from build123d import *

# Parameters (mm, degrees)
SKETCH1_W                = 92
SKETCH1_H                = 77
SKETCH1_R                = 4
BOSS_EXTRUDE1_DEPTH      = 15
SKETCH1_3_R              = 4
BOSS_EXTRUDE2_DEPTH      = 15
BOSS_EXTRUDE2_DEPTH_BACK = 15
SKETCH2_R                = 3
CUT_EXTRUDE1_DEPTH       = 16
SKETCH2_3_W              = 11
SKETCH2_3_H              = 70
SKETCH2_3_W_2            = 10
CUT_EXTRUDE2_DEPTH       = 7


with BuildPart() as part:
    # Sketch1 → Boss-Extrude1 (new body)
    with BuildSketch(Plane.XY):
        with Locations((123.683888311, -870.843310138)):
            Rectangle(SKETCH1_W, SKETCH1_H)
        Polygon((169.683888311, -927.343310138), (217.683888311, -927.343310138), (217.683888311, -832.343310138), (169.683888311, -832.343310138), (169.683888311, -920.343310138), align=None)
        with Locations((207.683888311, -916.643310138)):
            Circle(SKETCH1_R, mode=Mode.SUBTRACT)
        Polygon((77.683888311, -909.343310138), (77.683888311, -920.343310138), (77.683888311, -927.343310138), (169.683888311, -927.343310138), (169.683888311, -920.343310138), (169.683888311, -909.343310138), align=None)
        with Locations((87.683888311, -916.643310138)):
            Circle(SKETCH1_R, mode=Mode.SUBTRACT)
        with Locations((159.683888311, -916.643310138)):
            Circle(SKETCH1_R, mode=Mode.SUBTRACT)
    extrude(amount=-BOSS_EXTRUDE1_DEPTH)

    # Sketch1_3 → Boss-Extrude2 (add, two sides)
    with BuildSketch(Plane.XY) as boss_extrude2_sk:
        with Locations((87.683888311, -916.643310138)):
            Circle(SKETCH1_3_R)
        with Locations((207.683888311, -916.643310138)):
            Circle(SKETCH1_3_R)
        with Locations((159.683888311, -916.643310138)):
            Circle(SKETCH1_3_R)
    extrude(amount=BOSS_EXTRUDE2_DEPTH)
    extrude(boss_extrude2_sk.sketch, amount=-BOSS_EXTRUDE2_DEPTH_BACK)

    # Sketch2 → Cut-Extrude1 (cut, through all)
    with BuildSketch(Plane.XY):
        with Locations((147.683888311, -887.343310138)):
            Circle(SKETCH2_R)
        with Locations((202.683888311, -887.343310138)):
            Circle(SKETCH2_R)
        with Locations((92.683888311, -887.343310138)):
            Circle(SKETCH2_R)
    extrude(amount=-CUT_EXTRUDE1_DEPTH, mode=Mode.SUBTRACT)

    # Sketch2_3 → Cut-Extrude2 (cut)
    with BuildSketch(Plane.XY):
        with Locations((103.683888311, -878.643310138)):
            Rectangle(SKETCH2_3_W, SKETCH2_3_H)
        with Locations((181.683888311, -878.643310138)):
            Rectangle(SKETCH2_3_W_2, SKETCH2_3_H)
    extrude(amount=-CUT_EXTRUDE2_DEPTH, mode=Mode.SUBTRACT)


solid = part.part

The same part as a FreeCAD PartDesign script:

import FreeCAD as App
import Part
import Sketcher

V = App.Vector

doc = App.newDocument("Part")
body = doc.addObject("PartDesign::Body", "Body")

# Sketch on XY plane
sketch1 = body.newObject("Sketcher::SketchObject", "Sketch")
sketch1.AttachmentSupport = (doc.getObject("XY_Plane"), [""])
sketch1.MapMode = "FlatFace"
sketch1.addGeometry(Part.LineSegment(V(77.7, -832.3, 0), V(77.7, -927.3, 0)), False)
sketch1.addGeometry(Part.LineSegment(V(77.7, -927.3, 0), V(217.7, -927.3, 0)), False)
sketch1.addGeometry(Part.LineSegment(V(217.7, -927.3, 0), V(217.7, -832.3, 0)), False)
sketch1.addGeometry(Part.LineSegment(V(217.7, -832.3, 0), V(77.7, -832.3, 0)), False)
sketch1.addGeometry(Part.Circle(V(87.7, -916.6, 0), V(0, 0, 1), 4), False)
sketch1.addGeometry(Part.Circle(V(159.7, -916.6, 0), V(0, 0, 1), 4), False)
sketch1.addGeometry(Part.Circle(V(207.7, -916.6, 0), V(0, 0, 1), 4), False)
sketch1.addConstraint(Sketcher.Constraint("Coincident", 0, 2, 1, 1))
sketch1.addConstraint(Sketcher.Constraint("Coincident", 1, 2, 2, 1))
sketch1.addConstraint(Sketcher.Constraint("Coincident", 2, 2, 3, 1))
sketch1.addConstraint(Sketcher.Constraint("Coincident", 3, 2, 0, 1))
sketch1.addConstraint(Sketcher.Constraint("Vertical", 0))
sketch1.addConstraint(Sketcher.Constraint("Horizontal", 1))
sketch1.addConstraint(Sketcher.Constraint("Vertical", 2))
sketch1.addConstraint(Sketcher.Constraint("Horizontal", 3))
sketch1.addConstraint(Sketcher.Constraint("Equal", 4, 5))
sketch1.addConstraint(Sketcher.Constraint("Equal", 5, 6))
sketch1.addConstraint(Sketcher.Constraint("Horizontal", 4, 3, 5, 3))
sketch1.addConstraint(Sketcher.Constraint("Horizontal", 5, 3, 6, 3))
sketch1.addConstraint(Sketcher.Constraint("Diameter", 4, 8.0))
sketch1.addConstraint(Sketcher.Constraint("DistanceX", 1, 1, 1, 2, 140.0))
sketch1.addConstraint(Sketcher.Constraint("DistanceY", 0, 2, 0, 1, 95.0))
sketch1.addConstraint(Sketcher.Constraint("DistanceX", 4, 3, 5, 3, 72.0))
sketch1.addConstraint(Sketcher.Constraint("DistanceX", 5, 3, 6, 3, 48.0))
sketch1.addConstraint(Sketcher.Constraint("DistanceX", 0, 2, 4, 3, 10.0))
sketch1.addConstraint(Sketcher.Constraint("DistanceY", 0, 2, 4, 3, 10.7))
sketch1.addConstraint(Sketcher.Constraint("DistanceX", -1, 1, 4, 3, 87.683888))
sketch1.addConstraint(Sketcher.Constraint("DistanceY", 4, 3, -1, 1, 916.64331))
pad1 = body.newObject("PartDesign::Pad", "Pad")
pad1.Profile = sketch1
pad1.Length = 15
pad1.Reversed = True

# Sketch on XY plane
sketch2 = body.newObject("Sketcher::SketchObject", "Sketch001")
sketch2.AttachmentSupport = (doc.getObject("XY_Plane"), [""])
sketch2.MapMode = "FlatFace"
sketch2.addGeometry(Part.Circle(V(87.7, -916.6, 0), V(0, 0, 1), 4), False)
sketch2.addGeometry(Part.Circle(V(207.7, -916.6, 0), V(0, 0, 1), 4), False)
sketch2.addGeometry(Part.Circle(V(159.7, -916.6, 0), V(0, 0, 1), 4), False)
sketch2.addConstraint(Sketcher.Constraint("Equal", 0, 1))
sketch2.addConstraint(Sketcher.Constraint("Equal", 1, 2))
sketch2.addConstraint(Sketcher.Constraint("Horizontal", 0, 3, 1, 3))
sketch2.addConstraint(Sketcher.Constraint("Horizontal", 1, 3, 2, 3))
sketch2.addConstraint(Sketcher.Constraint("Diameter", 0, 8.0))
sketch2.addConstraint(Sketcher.Constraint("DistanceX", 0, 3, 1, 3, 120.0))
sketch2.addConstraint(Sketcher.Constraint("DistanceX", 2, 3, 1, 3, 48.0))
sketch2.addConstraint(Sketcher.Constraint("DistanceX", -1, 1, 0, 3, 87.683888))
sketch2.addConstraint(Sketcher.Constraint("DistanceY", 0, 3, -1, 1, 916.64331))
pad2 = body.newObject("PartDesign::Pad", "Pad001")
pad2.Profile = sketch2
pad2.Type = "TwoLengths"
pad2.Length = 15
pad2.Length2 = 15

# Sketch on XY plane
sketch3 = body.newObject("Sketcher::SketchObject", "Sketch002")
sketch3.AttachmentSupport = (doc.getObject("XY_Plane"), [""])
sketch3.MapMode = "FlatFace"
sketch3.addGeometry(Part.Circle(V(147.7, -887.3, 0), V(0, 0, 1), 3), False)
sketch3.addGeometry(Part.Circle(V(202.7, -887.3, 0), V(0, 0, 1), 3), False)
sketch3.addGeometry(Part.Circle(V(92.7, -887.3, 0), V(0, 0, 1), 3), False)
sketch3.addConstraint(Sketcher.Constraint("Equal", 0, 1))
sketch3.addConstraint(Sketcher.Constraint("Equal", 1, 2))
sketch3.addConstraint(Sketcher.Constraint("Horizontal", 0, 3, 1, 3))
sketch3.addConstraint(Sketcher.Constraint("Horizontal", 1, 3, 2, 3))
sketch3.addConstraint(Sketcher.Constraint("Diameter", 0, 6.0))
sketch3.addConstraint(Sketcher.Constraint("DistanceX", 0, 3, 1, 3, 55.0))
sketch3.addConstraint(Sketcher.Constraint("DistanceX", 2, 3, 0, 3, 55.0))
sketch3.addConstraint(Sketcher.Constraint("DistanceX", -1, 1, 0, 3, 147.683888))
sketch3.addConstraint(Sketcher.Constraint("DistanceY", 0, 3, -1, 1, 887.34331))
pocket1 = body.newObject("PartDesign::Pocket", "Pocket")
pocket1.Profile = sketch3
pocket1.Type = "ThroughAll"

# Sketch on XY plane
sketch4 = body.newObject("Sketcher::SketchObject", "Sketch003")
sketch4.AttachmentSupport = (doc.getObject("XY_Plane"), [""])
sketch4.MapMode = "FlatFace"
sketch4.addGeometry(Part.LineSegment(V(98, -844, 0), V(98, -914, 0)), False)
sketch4.addGeometry(Part.LineSegment(V(98, -914, 0), V(109, -914, 0)), False)
sketch4.addGeometry(Part.LineSegment(V(109, -914, 0), V(109, -844, 0)), False)
sketch4.addGeometry(Part.LineSegment(V(109, -844, 0), V(98, -844, 0)), False)
sketch4.addGeometry(Part.LineSegment(V(177, -844, 0), V(177, -914, 0)), False)
sketch4.addGeometry(Part.LineSegment(V(177, -914, 0), V(187, -914, 0)), False)
sketch4.addGeometry(Part.LineSegment(V(187, -914, 0), V(187, -844, 0)), False)
sketch4.addGeometry(Part.LineSegment(V(187, -844, 0), V(177, -844, 0)), False)
sketch4.addConstraint(Sketcher.Constraint("Coincident", 0, 2, 1, 1))
sketch4.addConstraint(Sketcher.Constraint("Coincident", 1, 2, 2, 1))
sketch4.addConstraint(Sketcher.Constraint("Coincident", 2, 2, 3, 1))
sketch4.addConstraint(Sketcher.Constraint("Coincident", 3, 2, 0, 1))
sketch4.addConstraint(Sketcher.Constraint("Coincident", 4, 2, 5, 1))
sketch4.addConstraint(Sketcher.Constraint("Coincident", 5, 2, 6, 1))
sketch4.addConstraint(Sketcher.Constraint("Coincident", 6, 2, 7, 1))
sketch4.addConstraint(Sketcher.Constraint("Coincident", 7, 2, 4, 1))
sketch4.addConstraint(Sketcher.Constraint("Vertical", 0))
sketch4.addConstraint(Sketcher.Constraint("Horizontal", 1))
sketch4.addConstraint(Sketcher.Constraint("Vertical", 2))
sketch4.addConstraint(Sketcher.Constraint("Horizontal", 3))
sketch4.addConstraint(Sketcher.Constraint("Vertical", 4))
sketch4.addConstraint(Sketcher.Constraint("Horizontal", 5))
sketch4.addConstraint(Sketcher.Constraint("Vertical", 6))
sketch4.addConstraint(Sketcher.Constraint("Horizontal", 7))
sketch4.addConstraint(Sketcher.Constraint("Horizontal", 1, 2, 4, 2))
sketch4.addConstraint(Sketcher.Constraint("Horizontal", 3, 2, 6, 2))
sketch4.addConstraint(Sketcher.Constraint("DistanceX", 1, 1, 1, 2, 11.0))
sketch4.addConstraint(Sketcher.Constraint("DistanceX", 5, 1, 5, 2, 10.0))
sketch4.addConstraint(Sketcher.Constraint("DistanceY", 0, 2, 0, 1, 70.0))
sketch4.addConstraint(Sketcher.Constraint("DistanceX", 1, 2, 4, 2, 67.5))
sketch4.addConstraint(Sketcher.Constraint("DistanceX", -1, 1, 0, 2, 98.183888))
sketch4.addConstraint(Sketcher.Constraint("DistanceY", 0, 2, -1, 1, 913.64331))
pocket2 = body.newObject("PartDesign::Pocket", "Pocket001")
pocket2.Profile = sketch4
pocket2.Length = 7

doc.recompute()
